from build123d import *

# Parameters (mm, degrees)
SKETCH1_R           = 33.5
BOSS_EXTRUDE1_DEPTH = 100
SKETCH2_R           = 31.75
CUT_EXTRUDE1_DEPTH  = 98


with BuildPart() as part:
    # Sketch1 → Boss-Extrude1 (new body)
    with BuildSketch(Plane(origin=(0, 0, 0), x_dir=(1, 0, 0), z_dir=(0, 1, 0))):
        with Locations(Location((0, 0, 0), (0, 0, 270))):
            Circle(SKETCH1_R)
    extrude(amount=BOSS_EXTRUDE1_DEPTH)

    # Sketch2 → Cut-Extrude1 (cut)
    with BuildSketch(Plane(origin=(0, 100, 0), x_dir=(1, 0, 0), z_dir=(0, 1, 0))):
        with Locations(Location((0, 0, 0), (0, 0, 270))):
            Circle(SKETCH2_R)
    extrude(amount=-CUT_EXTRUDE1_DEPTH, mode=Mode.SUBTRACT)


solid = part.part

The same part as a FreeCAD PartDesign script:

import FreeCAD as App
import Part
import Sketcher
Q = App.Units.Quantity

doc = App.newDocument("Part")
body = doc.addObject("PartDesign::Body", "Body")

# Sketch on XZ plane
sketch1 = body.newObject("Sketcher::SketchObject", "Sketch")
sketch1.AttachmentSupport = (doc.getObject("XZ_Plane"), [""])
sketch1.MapMode = "FlatFace"
sketch1.addGeometry(Part.Circle(App.Vector(0, 0, 0), App.Vector(0, 0, 1), 34), False)
sketch1.addConstraint(Sketcher.Constraint("Coincident", 0, 3, -1, 1))
sketch1.addConstraint(Sketcher.Constraint("Diameter", 0, Q("67 mm")))
pad1 = body.newObject("PartDesign::Pad", "Pad")
pad1.Profile = sketch1
pad1.Length = 100
pad1.Reversed = True

# Sketch on XZ plane
sketch2 = body.newObject("Sketcher::SketchObject", "Sketch001")
sketch2.AttachmentSupport = (doc.getObject("XZ_Plane"), [""])
sketch2.MapMode = "FlatFace"
sketch2.AttachmentOffset = App.Placement(App.Vector(0, 0, -100), App.Rotation())
sketch2.addGeometry(Part.Circle(App.Vector(0, 0, 0), App.Vector(0, 0, 1), 32), False)
sketch2.addConstraint(Sketcher.Constraint("Coincident", 0, 3, -1, 1))
sketch2.addConstraint(Sketcher.Constraint("Diameter", 0, Q("63.5 mm")))
pocket1 = body.newObject("PartDesign::Pocket", "Pocket")
pocket1.Profile = sketch2
pocket1.Length = 98
pocket1.Reversed = True

doc.recompute()
